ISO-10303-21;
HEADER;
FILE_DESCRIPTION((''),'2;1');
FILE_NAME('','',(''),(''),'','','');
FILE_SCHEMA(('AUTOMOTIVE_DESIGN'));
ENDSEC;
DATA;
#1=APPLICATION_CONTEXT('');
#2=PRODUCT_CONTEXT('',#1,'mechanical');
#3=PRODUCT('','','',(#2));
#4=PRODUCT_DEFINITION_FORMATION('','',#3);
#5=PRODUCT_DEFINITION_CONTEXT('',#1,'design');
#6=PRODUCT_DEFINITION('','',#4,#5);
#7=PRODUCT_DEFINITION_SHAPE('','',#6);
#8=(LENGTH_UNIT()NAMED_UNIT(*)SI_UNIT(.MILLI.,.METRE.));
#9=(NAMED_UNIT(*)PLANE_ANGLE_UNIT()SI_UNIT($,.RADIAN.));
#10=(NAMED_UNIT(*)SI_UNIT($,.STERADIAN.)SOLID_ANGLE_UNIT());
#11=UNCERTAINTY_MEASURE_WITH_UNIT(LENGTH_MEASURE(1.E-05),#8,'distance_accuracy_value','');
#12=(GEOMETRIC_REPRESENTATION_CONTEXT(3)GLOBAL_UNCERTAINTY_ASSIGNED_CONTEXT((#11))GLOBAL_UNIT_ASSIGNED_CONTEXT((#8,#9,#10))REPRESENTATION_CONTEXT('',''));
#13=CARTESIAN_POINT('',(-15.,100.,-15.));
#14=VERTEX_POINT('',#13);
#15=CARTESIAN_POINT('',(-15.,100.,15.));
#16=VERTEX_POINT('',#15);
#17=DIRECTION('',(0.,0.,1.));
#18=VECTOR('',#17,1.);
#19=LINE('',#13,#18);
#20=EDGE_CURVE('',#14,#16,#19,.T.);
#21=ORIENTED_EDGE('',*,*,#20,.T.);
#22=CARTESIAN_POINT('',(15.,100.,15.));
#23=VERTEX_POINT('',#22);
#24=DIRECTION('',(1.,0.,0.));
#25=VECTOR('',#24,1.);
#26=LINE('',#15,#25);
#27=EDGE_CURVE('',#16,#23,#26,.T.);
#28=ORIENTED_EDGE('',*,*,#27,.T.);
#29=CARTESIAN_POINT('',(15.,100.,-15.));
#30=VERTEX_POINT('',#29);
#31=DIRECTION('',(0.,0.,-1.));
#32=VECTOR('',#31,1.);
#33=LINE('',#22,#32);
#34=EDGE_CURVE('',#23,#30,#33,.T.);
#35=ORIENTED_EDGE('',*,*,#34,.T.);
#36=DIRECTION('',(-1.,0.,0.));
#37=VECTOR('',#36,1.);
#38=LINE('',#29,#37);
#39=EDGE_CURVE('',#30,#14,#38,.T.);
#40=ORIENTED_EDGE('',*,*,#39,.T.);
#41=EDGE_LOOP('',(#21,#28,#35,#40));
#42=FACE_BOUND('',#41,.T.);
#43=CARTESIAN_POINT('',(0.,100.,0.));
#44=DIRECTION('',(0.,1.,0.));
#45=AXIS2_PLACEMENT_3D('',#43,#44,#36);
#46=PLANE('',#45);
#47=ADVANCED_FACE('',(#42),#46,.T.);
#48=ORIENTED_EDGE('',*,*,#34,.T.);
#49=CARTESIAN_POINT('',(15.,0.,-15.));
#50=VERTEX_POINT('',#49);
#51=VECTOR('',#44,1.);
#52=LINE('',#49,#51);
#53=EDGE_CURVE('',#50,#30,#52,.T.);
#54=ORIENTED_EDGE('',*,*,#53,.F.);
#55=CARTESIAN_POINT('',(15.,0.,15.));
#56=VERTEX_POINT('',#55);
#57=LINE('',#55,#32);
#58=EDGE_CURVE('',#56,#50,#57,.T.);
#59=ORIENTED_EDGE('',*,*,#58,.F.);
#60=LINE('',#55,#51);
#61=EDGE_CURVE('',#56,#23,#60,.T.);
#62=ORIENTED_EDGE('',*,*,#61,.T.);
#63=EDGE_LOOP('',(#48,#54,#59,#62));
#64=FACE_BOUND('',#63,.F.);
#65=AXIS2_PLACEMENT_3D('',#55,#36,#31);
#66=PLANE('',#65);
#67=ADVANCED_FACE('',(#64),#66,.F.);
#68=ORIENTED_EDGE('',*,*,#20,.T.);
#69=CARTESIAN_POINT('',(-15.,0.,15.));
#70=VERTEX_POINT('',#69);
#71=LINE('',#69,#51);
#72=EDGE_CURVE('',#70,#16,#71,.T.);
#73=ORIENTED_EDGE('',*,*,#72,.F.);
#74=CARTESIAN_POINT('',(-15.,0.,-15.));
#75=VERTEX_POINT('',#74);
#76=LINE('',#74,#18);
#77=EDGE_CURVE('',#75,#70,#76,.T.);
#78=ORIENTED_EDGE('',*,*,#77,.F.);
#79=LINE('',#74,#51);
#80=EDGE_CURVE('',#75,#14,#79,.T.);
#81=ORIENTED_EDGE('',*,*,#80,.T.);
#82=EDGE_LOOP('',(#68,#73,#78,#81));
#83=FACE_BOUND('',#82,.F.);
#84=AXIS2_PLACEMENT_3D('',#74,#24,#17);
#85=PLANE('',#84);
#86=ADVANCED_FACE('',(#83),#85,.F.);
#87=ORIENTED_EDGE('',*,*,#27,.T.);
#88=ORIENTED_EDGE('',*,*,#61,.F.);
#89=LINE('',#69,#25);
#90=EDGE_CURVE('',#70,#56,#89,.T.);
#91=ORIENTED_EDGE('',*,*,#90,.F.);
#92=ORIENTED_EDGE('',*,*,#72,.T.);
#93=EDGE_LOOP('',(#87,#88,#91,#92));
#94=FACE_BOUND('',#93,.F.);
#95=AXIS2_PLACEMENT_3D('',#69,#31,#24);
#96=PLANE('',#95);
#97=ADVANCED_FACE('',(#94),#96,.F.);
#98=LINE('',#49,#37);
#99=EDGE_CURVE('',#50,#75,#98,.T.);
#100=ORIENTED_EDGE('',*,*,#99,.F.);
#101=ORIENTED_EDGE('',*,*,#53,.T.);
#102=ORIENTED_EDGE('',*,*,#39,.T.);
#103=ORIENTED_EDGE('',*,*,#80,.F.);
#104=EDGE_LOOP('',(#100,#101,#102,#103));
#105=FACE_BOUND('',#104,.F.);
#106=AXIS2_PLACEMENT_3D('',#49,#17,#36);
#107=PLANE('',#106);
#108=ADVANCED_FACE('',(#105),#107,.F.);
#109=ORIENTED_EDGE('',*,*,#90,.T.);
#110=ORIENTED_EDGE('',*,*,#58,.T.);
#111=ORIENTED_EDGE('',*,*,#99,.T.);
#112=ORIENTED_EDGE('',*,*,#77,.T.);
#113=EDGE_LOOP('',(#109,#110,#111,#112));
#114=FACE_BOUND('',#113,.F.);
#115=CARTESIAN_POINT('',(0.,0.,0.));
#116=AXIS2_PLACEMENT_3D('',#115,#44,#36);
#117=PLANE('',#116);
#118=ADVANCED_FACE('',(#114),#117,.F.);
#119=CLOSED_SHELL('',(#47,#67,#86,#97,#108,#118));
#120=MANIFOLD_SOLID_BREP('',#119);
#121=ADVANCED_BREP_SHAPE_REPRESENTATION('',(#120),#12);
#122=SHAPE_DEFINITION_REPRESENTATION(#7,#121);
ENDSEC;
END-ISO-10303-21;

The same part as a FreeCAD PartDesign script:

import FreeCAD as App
import Part
import Sketcher
Q = App.Units.Quantity

doc = App.newDocument("Part")
body = doc.addObject("PartDesign::Body", "Body")

# Sketch on XZ plane
sketch1 = body.newObject("Sketcher::SketchObject", "Sketch")
sketch1.AttachmentSupport = (doc.getObject("XZ_Plane"), [""])
sketch1.MapMode = "FlatFace"
sketch1.addGeometry([
    Part.LineSegment(App.Vector(15, 15, 0), App.Vector(15, -15, 0)),
    Part.LineSegment(App.Vector(15, -15, 0), App.Vector(-15, -15, 0)),
    Part.LineSegment(App.Vector(-15, -15, 0), App.Vector(-15, 15, 0)),
    Part.LineSegment(App.Vector(-15, 15, 0), App.Vector(15, 15, 0)),
], False)
sketch1.addConstraint([
    Sketcher.Constraint("Coincident", 0, 2, 1, 1),
    Sketcher.Constraint("Coincident", 1, 2, 2, 1),
    Sketcher.Constraint("Coincident", 2, 2, 3, 1),
    Sketcher.Constraint("Coincident", 3, 2, 0, 1),
    Sketcher.Constraint("Vertical", 0),
    Sketcher.Constraint("Horizontal", 1),
    Sketcher.Constraint("Vertical", 2),
    Sketcher.Constraint("Horizontal", 3),
    Sketcher.Constraint("Symmetric", 0, 2, 2, 2, -1, 1),
    Sketcher.Constraint("Equal", 3, 0),
    Sketcher.Constraint("DistanceX", 1, 2, 1, 1, Q("1.1811 in")),
])
pad1 = body.newObject("PartDesign::Pad", "Pad")
pad1.Profile = sketch1
pad1.Length = Q("3.9370079 in")
pad1.Reversed = True

doc.recompute()
